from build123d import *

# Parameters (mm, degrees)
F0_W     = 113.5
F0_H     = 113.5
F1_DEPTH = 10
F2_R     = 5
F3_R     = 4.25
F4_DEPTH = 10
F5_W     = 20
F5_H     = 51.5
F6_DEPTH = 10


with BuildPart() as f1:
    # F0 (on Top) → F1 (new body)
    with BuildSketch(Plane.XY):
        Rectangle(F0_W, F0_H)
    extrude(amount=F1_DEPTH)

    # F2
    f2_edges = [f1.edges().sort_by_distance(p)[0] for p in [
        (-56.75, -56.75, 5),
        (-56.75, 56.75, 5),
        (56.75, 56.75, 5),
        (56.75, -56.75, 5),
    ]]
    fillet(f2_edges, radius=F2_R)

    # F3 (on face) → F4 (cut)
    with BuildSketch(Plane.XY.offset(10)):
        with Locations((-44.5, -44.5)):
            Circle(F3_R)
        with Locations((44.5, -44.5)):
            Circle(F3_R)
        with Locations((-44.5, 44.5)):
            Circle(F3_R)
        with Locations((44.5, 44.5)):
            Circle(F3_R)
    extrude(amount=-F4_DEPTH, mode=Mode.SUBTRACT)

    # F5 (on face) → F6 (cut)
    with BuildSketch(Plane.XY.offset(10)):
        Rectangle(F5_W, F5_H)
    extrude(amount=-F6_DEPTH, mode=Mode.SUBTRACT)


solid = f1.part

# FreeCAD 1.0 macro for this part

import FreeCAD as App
import Part
import Sketcher
from FreeCAD import Vector


def edges_at(feature, points):
    """Names of the edges that pass closest to the given points."""
    edges = feature.Shape.Edges
    near = lambda p: min(range(len(edges)), key=lambda i: edges[i].distToShape(Part.Vertex(*p))[0])
    return sorted({f"Edge{near(p) + 1}" for p in points})


def add_polygon(sketch, points):
    """Adds a closed chain of lines whose ends are joined by coincident constraints."""
    first, n = sketch.GeometryCount, len(points)
    for a, b in zip(points, points[1:] + points[:1]):
        sketch.addGeometry(Part.LineSegment(App.Vector(*a, 0), App.Vector(*b, 0)), False)
    for i in range(n):
        sketch.addConstraint(Sketcher.Constraint("Coincident", first + i, 2, first + (i + 1) % n, 1))

doc = App.newDocument("Part")
body = doc.addObject("PartDesign::Body", "Body")

# Sketch on XY plane
sketch1 = doc.addObject("Sketcher::SketchObject", "Sketch")
body.addObject(sketch1)
sketch1.AttachmentSupport = (doc.XY_Plane, [""])
sketch1.MapMode = "FlatFace"
add_polygon(sketch1, [(-57, 57), (-57, -57), (57, -57), (57, 57)])  # lines 0-3
sketch1.addConstraint([
    Sketcher.Constraint("Vertical", 0),
    Sketcher.Constraint("Horizontal", 1),
    Sketcher.Constraint("Vertical", 2),
    Sketcher.Constraint("Horizontal", 3),
    Sketcher.Constraint("Symmetric", 0, 2, 2, 2, -1, 1),
    Sketcher.Constraint("Equal", 3, 0),
    Sketcher.Constraint("DistanceX", 1, 1, 1, 2, 113.5),
])
pad1 = doc.addObject("PartDesign::Pad", "Pad")
body.addObject(pad1)
pad1.Profile = sketch1
pad1.Length = 10
doc.recompute()

fillet = doc.addObject("PartDesign::Fillet", "Fillet")
body.addObject(fillet)
fillet.Base = (pad1, edges_at(pad1, [
    (-56.75, -56.75, 5),
    (-56.75, 56.75, 5),
    (56.75, 56.75, 5),
    (56.75, -56.75, 5),
]))
fillet.Radius = 5

# Sketch on XY plane
sketch2 = doc.addObject("Sketcher::SketchObject", "Sketch001")
body.addObject(sketch2)
sketch2.AttachmentSupport = (doc.XY_Plane, [""])
sketch2.MapMode = "FlatFace"
sketch2.AttachmentOffset = App.Placement(Vector(0, 0, 10), App.Rotation())
sketch2.addGeometry([
    Part.Circle(Vector(-44.5, -44.5, 0), Vector(0, 0, 1), 4.2),
    Part.Circle(Vector(44.5, -44.5, 0), Vector(0, 0, 1), 4.2),
    Part.Circle(Vector(-44.5, 44.5, 0), Vector(0, 0, 1), 4.2),
    Part.Circle(Vector(44.5, 44.5, 0), Vector(0, 0, 1), 4.2),
], False)
sketch2.addConstraint([
    Sketcher.Constraint("Equal", 0, 1),
    Sketcher.Constraint("Equal", 1, 2),
    Sketcher.Constraint("Equal", 2, 3),
    Sketcher.Constraint("Symmetric", 1, 3, 2, 3, -1, 1),
    Sketcher.Constraint("Symmetric", 0, 3, 3, 3, -1, 1),
    Sketcher.Constraint("Symmetric", 0, 3, 1, 3, -2),
    Sketcher.Constraint("Diameter", 0, 8.5),
    Sketcher.Constraint("DistanceX", 0, 3, 1, 3, 89.0),
    Sketcher.Constraint("DistanceY", 0, 3, 2, 3, 89.0),
])
pocket1 = doc.addObject("PartDesign::Pocket", "Pocket")
body.addObject(pocket1)
pocket1.Profile = sketch2
pocket1.Length = 10

# Sketch on XY plane
sketch3 = doc.addObject("Sketcher::SketchObject", "Sketch002")
body.addObject(sketch3)
sketch3.AttachmentSupport = (doc.XY_Plane, [""])
sketch3.MapMode = "FlatFace"
sketch3.AttachmentOffset = App.Placement(Vector(0, 0, 10), App.Rotation())
add_polygon(sketch3, [(-10, 26), (-10, -26), (10, -26), (10, 26)])  # lines 0-3
sketch3.addConstraint([
    Sketcher.Constraint("Vertical", 0),
    Sketcher.Constraint("Horizontal", 1),
    Sketcher.Constraint("Vertical", 2),
    Sketcher.Constraint("Horizontal", 3),
    Sketcher.Constraint("Symmetric", 0, 2, 2, 2, -1, 1),
    Sketcher.Constraint("DistanceX", 1, 1, 1, 2, 20.0),
    Sketcher.Constraint("DistanceY", 0, 2, 0, 1, 51.5),
])
pocket2 = doc.addObject("PartDesign::Pocket", "Pocket001")
body.addObject(pocket2)
pocket2.Profile = sketch3
pocket2.Length = 10

doc.recompute()
